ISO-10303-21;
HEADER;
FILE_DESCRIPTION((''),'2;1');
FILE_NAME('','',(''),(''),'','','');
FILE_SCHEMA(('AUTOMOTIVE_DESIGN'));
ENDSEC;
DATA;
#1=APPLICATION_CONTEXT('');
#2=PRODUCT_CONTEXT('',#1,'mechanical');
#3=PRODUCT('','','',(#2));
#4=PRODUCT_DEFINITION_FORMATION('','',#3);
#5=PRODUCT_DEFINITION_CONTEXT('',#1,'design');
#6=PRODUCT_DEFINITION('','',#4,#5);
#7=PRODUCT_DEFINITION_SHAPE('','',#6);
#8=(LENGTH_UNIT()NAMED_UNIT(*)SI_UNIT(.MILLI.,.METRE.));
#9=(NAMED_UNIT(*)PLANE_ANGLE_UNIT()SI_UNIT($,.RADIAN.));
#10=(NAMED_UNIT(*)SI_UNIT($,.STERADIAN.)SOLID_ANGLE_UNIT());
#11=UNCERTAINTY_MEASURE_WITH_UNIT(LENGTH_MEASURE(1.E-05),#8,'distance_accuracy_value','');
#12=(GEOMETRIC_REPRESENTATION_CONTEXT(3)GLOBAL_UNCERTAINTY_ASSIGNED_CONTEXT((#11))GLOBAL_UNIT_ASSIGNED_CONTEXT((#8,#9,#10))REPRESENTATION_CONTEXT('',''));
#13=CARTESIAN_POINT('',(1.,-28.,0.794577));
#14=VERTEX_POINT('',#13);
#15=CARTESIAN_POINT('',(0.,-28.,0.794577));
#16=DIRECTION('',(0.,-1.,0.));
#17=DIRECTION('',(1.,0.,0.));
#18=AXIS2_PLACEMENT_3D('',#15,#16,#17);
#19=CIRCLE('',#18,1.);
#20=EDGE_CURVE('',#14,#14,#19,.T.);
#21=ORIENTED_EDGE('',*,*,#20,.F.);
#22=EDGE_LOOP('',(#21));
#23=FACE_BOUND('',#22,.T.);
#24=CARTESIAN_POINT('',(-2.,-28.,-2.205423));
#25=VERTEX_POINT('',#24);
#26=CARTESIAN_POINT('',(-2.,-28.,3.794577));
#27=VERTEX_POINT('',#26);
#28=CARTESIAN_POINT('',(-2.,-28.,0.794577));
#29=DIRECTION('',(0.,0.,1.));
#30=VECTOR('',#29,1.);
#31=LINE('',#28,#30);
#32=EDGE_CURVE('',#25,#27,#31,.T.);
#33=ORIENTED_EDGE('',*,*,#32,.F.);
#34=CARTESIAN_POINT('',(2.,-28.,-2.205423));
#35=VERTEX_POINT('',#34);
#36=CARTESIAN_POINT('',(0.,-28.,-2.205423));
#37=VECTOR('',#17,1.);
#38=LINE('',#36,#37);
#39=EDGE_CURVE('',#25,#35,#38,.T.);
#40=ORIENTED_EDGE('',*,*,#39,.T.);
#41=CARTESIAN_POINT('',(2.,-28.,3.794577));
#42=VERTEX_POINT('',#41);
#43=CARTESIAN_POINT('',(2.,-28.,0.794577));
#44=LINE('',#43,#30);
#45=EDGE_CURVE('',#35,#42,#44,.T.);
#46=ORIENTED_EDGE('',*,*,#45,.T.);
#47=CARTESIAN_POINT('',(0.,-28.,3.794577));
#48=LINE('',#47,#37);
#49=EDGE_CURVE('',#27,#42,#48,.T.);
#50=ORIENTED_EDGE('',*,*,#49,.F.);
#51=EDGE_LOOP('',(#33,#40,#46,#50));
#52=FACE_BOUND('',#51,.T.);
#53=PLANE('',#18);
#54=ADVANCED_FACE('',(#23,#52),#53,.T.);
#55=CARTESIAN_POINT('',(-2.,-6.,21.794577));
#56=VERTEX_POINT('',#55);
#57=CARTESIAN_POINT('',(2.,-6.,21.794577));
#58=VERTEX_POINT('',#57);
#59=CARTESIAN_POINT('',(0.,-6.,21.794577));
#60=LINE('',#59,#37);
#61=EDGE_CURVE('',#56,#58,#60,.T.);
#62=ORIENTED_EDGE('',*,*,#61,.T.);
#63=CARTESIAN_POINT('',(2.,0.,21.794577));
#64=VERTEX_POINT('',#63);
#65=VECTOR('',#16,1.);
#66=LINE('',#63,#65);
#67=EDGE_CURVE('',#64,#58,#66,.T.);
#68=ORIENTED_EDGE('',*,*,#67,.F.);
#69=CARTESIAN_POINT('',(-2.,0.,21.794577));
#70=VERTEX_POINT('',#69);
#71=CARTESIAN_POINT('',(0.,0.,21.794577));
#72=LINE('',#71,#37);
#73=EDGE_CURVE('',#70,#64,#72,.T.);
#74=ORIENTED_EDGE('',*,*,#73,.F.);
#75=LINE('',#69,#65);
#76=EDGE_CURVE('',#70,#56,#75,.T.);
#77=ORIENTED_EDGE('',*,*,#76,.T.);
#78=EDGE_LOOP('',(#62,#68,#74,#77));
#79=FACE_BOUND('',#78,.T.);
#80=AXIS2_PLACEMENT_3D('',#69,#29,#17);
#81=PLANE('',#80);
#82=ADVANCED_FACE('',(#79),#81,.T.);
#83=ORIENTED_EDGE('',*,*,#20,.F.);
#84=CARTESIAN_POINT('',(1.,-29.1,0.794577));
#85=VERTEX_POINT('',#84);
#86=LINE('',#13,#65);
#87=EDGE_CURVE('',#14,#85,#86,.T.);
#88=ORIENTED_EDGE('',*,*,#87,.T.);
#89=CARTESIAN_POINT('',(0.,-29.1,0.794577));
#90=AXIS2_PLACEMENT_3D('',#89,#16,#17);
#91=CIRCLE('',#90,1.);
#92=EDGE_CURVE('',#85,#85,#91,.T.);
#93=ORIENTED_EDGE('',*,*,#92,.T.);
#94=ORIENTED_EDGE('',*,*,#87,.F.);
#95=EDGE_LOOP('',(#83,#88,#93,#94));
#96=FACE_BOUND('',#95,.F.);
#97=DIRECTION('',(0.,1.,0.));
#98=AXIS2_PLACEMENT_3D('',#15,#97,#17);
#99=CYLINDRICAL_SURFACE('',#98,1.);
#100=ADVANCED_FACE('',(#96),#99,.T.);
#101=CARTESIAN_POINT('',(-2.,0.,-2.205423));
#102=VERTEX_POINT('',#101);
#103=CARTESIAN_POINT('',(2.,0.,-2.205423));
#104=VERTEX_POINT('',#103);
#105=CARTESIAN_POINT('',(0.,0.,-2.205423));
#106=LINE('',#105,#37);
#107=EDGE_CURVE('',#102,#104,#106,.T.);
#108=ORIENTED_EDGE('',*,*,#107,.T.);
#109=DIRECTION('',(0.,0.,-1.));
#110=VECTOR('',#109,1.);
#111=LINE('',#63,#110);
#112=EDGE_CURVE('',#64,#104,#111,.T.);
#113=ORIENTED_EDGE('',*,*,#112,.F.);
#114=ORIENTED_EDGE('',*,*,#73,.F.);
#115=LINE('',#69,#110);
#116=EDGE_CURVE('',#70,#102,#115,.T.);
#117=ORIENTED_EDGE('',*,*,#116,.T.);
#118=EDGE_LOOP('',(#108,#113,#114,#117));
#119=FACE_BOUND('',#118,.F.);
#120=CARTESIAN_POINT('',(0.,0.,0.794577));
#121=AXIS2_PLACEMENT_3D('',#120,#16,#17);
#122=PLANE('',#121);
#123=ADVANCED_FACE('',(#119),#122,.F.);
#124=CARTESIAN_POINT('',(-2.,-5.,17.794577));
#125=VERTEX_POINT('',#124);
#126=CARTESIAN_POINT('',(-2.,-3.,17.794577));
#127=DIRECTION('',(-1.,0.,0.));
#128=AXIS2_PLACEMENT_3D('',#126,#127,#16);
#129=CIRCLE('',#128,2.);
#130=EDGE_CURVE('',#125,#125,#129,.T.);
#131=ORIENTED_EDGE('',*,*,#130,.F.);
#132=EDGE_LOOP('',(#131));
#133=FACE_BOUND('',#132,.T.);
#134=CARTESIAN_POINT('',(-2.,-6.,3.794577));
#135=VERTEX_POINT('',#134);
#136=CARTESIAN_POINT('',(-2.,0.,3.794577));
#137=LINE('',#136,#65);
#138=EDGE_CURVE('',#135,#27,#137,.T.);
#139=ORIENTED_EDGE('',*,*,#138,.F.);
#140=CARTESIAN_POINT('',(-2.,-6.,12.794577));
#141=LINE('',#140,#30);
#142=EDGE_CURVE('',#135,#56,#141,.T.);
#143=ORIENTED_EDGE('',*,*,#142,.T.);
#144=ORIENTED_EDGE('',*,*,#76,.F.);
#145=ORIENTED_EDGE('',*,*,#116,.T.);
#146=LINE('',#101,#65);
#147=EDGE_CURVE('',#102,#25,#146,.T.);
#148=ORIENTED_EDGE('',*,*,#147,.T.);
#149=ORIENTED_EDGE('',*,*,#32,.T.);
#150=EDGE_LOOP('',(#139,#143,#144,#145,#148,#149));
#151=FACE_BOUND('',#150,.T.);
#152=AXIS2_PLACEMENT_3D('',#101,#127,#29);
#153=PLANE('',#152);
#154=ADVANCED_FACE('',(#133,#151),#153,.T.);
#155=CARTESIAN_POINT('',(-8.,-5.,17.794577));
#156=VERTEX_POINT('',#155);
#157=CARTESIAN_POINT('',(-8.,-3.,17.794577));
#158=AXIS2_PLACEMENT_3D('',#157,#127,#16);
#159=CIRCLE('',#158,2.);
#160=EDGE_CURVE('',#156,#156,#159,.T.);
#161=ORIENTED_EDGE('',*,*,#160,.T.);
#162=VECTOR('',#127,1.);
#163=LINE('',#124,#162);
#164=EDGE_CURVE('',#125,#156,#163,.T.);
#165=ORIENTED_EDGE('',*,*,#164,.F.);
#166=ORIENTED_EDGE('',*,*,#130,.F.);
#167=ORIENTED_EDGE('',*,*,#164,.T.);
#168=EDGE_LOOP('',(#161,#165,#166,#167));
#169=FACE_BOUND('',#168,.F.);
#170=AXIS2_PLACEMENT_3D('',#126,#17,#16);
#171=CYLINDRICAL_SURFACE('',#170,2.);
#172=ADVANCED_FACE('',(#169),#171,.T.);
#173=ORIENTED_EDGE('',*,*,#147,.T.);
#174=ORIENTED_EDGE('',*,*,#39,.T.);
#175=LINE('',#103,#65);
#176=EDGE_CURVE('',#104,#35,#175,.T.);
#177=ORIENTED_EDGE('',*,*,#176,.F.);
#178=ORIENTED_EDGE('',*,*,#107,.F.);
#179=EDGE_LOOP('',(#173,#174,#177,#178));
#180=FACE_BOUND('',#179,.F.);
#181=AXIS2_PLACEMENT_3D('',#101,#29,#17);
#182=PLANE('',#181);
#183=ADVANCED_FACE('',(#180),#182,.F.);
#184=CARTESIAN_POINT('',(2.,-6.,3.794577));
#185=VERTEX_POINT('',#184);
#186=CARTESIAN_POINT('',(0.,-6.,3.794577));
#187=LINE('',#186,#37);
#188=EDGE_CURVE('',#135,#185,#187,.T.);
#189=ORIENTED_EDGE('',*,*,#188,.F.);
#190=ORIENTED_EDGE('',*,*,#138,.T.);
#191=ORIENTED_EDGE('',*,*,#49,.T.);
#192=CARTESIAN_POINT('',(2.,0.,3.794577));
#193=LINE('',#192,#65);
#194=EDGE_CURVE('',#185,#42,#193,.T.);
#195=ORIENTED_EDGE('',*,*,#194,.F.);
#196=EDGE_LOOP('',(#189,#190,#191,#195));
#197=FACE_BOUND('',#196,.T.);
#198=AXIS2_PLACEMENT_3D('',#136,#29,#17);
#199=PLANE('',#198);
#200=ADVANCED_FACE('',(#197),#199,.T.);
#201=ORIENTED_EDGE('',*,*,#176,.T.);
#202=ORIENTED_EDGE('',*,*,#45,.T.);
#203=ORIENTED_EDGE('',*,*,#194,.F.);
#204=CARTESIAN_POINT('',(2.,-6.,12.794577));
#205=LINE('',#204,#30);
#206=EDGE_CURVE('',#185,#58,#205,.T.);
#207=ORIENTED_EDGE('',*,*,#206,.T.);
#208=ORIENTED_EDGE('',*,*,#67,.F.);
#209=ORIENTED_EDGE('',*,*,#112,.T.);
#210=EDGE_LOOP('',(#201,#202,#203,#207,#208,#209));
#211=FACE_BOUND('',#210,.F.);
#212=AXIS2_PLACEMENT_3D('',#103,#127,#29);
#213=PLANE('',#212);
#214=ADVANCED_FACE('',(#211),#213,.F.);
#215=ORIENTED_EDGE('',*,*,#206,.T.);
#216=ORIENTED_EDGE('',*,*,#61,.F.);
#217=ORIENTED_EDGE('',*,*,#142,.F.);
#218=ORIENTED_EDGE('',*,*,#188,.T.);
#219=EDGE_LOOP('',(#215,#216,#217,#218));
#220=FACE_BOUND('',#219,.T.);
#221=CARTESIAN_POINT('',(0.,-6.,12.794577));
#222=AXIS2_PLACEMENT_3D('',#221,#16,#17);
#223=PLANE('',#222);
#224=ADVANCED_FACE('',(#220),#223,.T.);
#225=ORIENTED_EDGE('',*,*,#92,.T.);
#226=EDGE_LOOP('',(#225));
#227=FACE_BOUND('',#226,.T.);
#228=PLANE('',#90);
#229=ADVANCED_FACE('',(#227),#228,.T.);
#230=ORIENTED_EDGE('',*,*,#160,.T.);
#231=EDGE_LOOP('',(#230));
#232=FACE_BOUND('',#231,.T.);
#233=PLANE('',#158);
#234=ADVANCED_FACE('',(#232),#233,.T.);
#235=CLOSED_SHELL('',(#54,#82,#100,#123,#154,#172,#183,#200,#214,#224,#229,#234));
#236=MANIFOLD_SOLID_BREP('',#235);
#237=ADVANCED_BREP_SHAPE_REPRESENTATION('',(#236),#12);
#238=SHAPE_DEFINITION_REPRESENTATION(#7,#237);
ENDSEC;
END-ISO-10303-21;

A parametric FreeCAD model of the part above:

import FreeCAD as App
import Part
import Sketcher

V = App.Vector
Q = App.Units.Quantity


def add_polygon(sketch, points):
    """Adds a closed chain of lines whose ends are joined by coincident constraints."""
    first, n = sketch.GeometryCount, len(points)
    for a, b in zip(points, points[1:] + points[:1]):
        sketch.addGeometry(Part.LineSegment(App.Vector(*a, 0), App.Vector(*b, 0)), False)
    for i in range(n):
        sketch.addConstraint(Sketcher.Constraint("Coincident", first + i, 2, first + (i + 1) % n, 1))

doc = App.newDocument("Part")
body = doc.addObject("PartDesign::Body", "Body")

sketch1 = body.newObject("Sketcher::SketchObject", "Sketch")
sketch1.AttachmentSupport = (doc.getObject("XZ_Plane"), [""])
sketch1.MapMode = "FlatFace"
add_polygon(sketch1, [(-2, 21.794577), (-2, 3.794577), (2, 3.794577), (2, 21.794577)])
sketch1.addConstraint([
    Sketcher.Constraint("Vertical", 0),
    Sketcher.Constraint("Horizontal", 1),
    Sketcher.Constraint("Vertical", 2),
    Sketcher.Constraint("Horizontal", 3),
    Sketcher.Constraint("DistanceX", 1, 1, 1, 2, Q("4 mm")),
    Sketcher.Constraint("DistanceY", 0, 2, 0, 1, Q("18 mm")),
    Sketcher.Constraint("DistanceX", 0, 2, -1, 1, Q("2 mm")),
    Sketcher.Constraint("DistanceY", -1, 1, 0, 2, Q("3.794577 mm")),
])
pad1 = body.newObject("PartDesign::Pad", "Pad")
pad1.Profile = sketch1
pad1.Length = 6

sketch2 = body.newObject("Sketcher::SketchObject", "Sketch001")
sketch2.AttachmentSupport = (doc.getObject("XZ_Plane"), [""])
sketch2.MapMode = "FlatFace"
add_polygon(sketch2, [(-2, 3.794577), (-2, -2.205423), (2, -2.205423), (2, 3.794577)])
sketch2.addConstraint([
    Sketcher.Constraint("Vertical", 0),
    Sketcher.Constraint("Horizontal", 1),
    Sketcher.Constraint("Vertical", 2),
    Sketcher.Constraint("Horizontal", 3),
    Sketcher.Constraint("DistanceX", 1, 1, 1, 2, Q("4 mm")),
    Sketcher.Constraint("DistanceY", 0, 2, 0, 1, Q("6 mm")),
    Sketcher.Constraint("DistanceX", 0, 2, -1, 1, Q("2 mm")),
    Sketcher.Constraint("DistanceY", 0, 2, -1, 1, Q("2.205423 mm")),
])
pad2 = body.newObject("PartDesign::Pad", "Pad001")
pad2.Profile = sketch2
pad2.Length = 28

sketch3 = body.newObject("Sketcher::SketchObject", "Sketch002")
sketch3.AttachmentSupport = (doc.getObject("XZ_Plane"), [""])
sketch3.MapMode = "FlatFace"
sketch3.AttachmentOffset = App.Placement(V(0, 0, 28), App.Rotation())
sketch3.addGeometry(Part.Circle(V(0, 0.794577, 0), V(0, 0, 1), 1), False)
sketch3.addConstraint([
    Sketcher.Constraint("PointOnObject", 0, 3, -2),
    Sketcher.Constraint("Diameter", 0, Q("2 mm")),
    Sketcher.Constraint("DistanceY", -1, 1, 0, 3, Q("0.794577 mm")),
])
pad3 = body.newObject("PartDesign::Pad", "Pad002")
pad3.Profile = sketch3
pad3.Length = 1.1

sketch4 = body.newObject("Sketcher::SketchObject", "Sketch003")
sketch4.AttachmentSupport = (doc.getObject("YZ_Plane"), [""])
sketch4.MapMode = "FlatFace"
sketch4.AttachmentOffset = App.Placement(V(0, 0, -2), App.Rotation())
sketch4.addGeometry(Part.Circle(V(-3, 17.794577, 0), V(0, 0, 1), 2), False)
sketch4.addConstraint([
    Sketcher.Constraint("Diameter", 0, Q("4 mm")),
    Sketcher.Constraint("DistanceX", 0, 3, -1, 1, Q("3 mm")),
    Sketcher.Constraint("DistanceY", -1, 1, 0, 3, Q("17.794577 mm")),
])
pad4 = body.newObject("PartDesign::Pad", "Pad003")
pad4.Profile = sketch4
pad4.Length = 6
pad4.Reversed = True

doc.recompute()
